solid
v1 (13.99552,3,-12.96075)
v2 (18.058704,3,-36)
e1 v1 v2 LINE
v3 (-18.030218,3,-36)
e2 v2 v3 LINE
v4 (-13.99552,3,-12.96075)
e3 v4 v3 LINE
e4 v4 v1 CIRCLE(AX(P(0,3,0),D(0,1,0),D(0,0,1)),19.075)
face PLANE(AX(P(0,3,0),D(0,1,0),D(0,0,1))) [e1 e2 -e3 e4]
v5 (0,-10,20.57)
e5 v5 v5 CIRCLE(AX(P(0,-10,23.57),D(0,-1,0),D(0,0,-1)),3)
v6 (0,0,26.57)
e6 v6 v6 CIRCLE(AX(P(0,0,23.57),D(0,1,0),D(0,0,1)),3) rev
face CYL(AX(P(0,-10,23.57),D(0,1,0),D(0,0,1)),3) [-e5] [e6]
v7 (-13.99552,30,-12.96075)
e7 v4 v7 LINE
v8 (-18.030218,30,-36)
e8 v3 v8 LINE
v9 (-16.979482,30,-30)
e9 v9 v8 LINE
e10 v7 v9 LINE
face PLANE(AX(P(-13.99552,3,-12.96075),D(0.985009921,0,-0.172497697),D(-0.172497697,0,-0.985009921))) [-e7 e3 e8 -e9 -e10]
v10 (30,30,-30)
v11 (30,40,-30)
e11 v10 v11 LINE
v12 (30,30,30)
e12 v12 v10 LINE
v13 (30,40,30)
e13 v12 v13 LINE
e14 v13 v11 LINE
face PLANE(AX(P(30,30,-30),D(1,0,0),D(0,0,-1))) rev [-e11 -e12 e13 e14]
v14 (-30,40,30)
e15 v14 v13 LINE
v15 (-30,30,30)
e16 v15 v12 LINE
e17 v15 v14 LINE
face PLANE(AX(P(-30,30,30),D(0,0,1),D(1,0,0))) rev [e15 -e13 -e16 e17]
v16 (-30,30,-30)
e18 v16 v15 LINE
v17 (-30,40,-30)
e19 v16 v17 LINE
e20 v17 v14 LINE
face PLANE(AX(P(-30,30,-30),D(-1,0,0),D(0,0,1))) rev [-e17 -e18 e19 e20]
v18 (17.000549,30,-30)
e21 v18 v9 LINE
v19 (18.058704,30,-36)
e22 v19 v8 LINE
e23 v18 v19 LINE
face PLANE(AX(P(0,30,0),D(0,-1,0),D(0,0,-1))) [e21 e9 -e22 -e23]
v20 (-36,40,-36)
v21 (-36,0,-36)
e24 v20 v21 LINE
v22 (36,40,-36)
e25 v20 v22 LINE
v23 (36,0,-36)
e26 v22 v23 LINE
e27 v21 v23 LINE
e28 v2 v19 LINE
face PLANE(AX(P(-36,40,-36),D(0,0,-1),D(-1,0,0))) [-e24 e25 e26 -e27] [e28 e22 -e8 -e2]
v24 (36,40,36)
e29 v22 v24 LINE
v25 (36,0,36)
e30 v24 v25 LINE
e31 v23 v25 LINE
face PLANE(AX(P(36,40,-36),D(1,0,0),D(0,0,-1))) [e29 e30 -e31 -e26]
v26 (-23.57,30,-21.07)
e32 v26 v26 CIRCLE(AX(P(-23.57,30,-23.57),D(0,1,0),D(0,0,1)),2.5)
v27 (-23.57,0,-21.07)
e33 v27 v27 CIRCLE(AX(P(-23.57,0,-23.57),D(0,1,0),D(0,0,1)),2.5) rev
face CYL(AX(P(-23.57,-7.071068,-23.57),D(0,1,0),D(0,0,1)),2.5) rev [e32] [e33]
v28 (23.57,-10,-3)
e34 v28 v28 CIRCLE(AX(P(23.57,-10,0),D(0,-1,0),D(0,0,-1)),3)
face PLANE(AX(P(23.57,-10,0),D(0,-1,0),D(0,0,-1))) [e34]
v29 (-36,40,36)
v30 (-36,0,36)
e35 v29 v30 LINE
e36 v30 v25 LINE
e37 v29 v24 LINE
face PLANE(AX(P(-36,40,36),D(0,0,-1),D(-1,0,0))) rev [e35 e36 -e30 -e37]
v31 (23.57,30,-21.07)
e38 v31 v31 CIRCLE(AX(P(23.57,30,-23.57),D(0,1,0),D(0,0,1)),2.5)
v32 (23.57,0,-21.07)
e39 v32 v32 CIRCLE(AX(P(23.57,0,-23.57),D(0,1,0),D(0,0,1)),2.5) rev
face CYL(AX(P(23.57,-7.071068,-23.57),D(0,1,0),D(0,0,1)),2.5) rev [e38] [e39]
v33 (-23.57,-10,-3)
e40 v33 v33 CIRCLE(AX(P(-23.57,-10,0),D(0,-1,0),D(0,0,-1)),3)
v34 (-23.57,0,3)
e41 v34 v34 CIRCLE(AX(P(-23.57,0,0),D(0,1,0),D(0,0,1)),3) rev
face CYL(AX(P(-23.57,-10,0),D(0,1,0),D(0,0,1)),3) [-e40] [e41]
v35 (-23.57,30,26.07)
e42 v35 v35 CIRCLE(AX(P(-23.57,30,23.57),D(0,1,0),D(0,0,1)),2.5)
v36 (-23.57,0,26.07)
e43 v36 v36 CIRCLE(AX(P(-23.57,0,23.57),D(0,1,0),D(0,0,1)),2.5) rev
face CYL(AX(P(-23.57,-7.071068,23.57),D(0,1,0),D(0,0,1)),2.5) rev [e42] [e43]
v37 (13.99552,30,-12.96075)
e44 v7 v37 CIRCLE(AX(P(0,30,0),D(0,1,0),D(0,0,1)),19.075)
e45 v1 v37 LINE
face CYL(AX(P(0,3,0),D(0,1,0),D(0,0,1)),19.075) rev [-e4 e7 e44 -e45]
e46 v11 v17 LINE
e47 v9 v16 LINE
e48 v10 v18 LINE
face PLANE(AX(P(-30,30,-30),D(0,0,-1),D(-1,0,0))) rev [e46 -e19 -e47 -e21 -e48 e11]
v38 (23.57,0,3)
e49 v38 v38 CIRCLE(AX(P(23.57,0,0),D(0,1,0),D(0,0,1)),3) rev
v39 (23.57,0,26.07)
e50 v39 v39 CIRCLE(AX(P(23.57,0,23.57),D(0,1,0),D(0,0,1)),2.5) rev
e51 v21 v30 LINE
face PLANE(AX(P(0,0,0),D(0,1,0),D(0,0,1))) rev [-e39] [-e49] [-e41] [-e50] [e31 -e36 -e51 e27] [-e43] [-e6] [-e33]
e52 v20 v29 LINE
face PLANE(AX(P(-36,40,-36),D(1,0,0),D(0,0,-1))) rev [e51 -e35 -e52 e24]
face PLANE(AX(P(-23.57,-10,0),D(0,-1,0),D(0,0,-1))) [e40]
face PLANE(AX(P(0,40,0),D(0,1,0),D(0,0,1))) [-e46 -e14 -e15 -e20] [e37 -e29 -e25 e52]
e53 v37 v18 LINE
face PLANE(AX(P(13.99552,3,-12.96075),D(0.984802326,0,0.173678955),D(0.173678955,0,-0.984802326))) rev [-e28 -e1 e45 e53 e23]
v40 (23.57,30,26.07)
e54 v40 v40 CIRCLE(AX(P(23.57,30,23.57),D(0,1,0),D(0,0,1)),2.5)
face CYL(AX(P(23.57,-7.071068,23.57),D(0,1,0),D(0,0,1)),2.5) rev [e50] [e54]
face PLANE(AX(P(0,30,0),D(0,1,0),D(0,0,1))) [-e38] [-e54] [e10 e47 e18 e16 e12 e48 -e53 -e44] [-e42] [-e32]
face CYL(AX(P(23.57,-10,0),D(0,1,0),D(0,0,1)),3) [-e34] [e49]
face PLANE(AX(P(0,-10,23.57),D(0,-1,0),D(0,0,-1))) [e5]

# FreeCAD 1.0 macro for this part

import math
import FreeCAD as App
import Part
import Sketcher

V = App.Vector
Q = App.Units.Quantity


def add_polygon(sketch, points):
    """Adds a closed chain of lines whose ends are joined by coincident constraints."""
    first, n = sketch.GeometryCount, len(points)
    for a, b in zip(points, points[1:] + points[:1]):
        sketch.addGeometry(Part.LineSegment(App.Vector(*a, 0), App.Vector(*b, 0)), False)
    for i in range(n):
        sketch.addConstraint(Sketcher.Constraint("Coincident", first + i, 2, first + (i + 1) % n, 1))

doc = App.newDocument("Part")
body = doc.addObject("PartDesign::Body", "Body")

# Sketch on XZ plane
sketch1 = body.newObject("Sketcher::SketchObject", "Sketch")
sketch1.AttachmentSupport = (doc.getObject("XZ_Plane"), [""])
sketch1.MapMode = "FlatFace"
add_polygon(sketch1, [(-36, -36), (-36, 36), (36, 36), (36, -36)])  # lines 0-3
sketch1.addConstraint(Sketcher.Constraint("Vertical", 0))
sketch1.addConstraint(Sketcher.Constraint("Horizontal", 1))
sketch1.addConstraint(Sketcher.Constraint("Vertical", 2))
sketch1.addConstraint(Sketcher.Constraint("Horizontal", 3))
sketch1.addConstraint(Sketcher.Constraint("Symmetric", 0, 2, 2, 2, -1, 1))
sketch1.addConstraint(Sketcher.Constraint("Equal", 3, 0))
sketch1.addConstraint(Sketcher.Constraint("DistanceX", 1, 1, 1, 2, Q("72 mm")))
pad1 = body.newObject("PartDesign::Pad", "Pad")
pad1.Profile = sketch1
pad1.Length = 40
pad1.Reversed = True

# Sketch on XZ plane
sketch2 = body.newObject("Sketcher::SketchObject", "Sketch001")
sketch2.AttachmentSupport = (doc.getObject("XZ_Plane"), [""])
sketch2.MapMode = "FlatFace"
sketch2.AttachmentOffset = App.Placement(V(0, 0, -40), App.Rotation())
add_polygon(sketch2, [(-30, -30), (-30, 30), (30, 30), (30, -30)])  # lines 0-3
sketch2.addConstraint(Sketcher.Constraint("Vertical", 0))
sketch2.addConstraint(Sketcher.Constraint("Horizontal", 1))
sketch2.addConstraint(Sketcher.Constraint("Vertical", 2))
sketch2.addConstraint(Sketcher.Constraint("Horizontal", 3))
sketch2.addConstraint(Sketcher.Constraint("Symmetric", 0, 2, 2, 2, -1, 1))
sketch2.addConstraint(Sketcher.Constraint("Equal", 3, 0))
sketch2.addConstraint(Sketcher.Constraint("DistanceX", 1, 1, 1, 2, Q("60 mm")))
pocket1 = body.newObject("PartDesign::Pocket", "Pocket")
pocket1.Profile = sketch2
pocket1.Length = 10
pocket1.Reversed = True

# Sketch on XZ plane
sketch3 = body.newObject("Sketcher::SketchObject", "Sketch002")
sketch3.AttachmentSupport = (doc.getObject("XZ_Plane"), [""])
sketch3.MapMode = "FlatFace"
sketch3.AttachmentOffset = App.Placement(V(0, 0, -30), App.Rotation())
sketch3.addGeometry(Part.Circle(V(-23.57, -23.57, 0), V(0, 0, 1), 2.5), False)
sketch3.addGeometry(Part.Circle(V(23.57, -23.57, 0), V(0, 0, 1), 2.5), False)
sketch3.addGeometry(Part.Circle(V(23.57, 23.57, 0), V(0, 0, 1), 2.5), False)
sketch3.addGeometry(Part.Circle(V(-23.57, 23.57, 0), V(0, 0, 1), 2.5), False)
sketch3.addConstraint(Sketcher.Constraint("Equal", 0, 1))
sketch3.addConstraint(Sketcher.Constraint("Equal", 1, 2))
sketch3.addConstraint(Sketcher.Constraint("Equal", 2, 3))
sketch3.addConstraint(Sketcher.Constraint("Symmetric", 0, 3, 2, 3, -1, 1))
sketch3.addConstraint(Sketcher.Constraint("Symmetric", 1, 3, 3, 3, -1, 1))
sketch3.addConstraint(Sketcher.Constraint("Symmetric", 0, 3, 1, 3, -2))
sketch3.addConstraint(Sketcher.Constraint("Diameter", 0, Q("5 mm")))
sketch3.addConstraint(Sketcher.Constraint("DistanceX", 0, 3, -1, 1, Q("23.57 mm")))
sketch3.addConstraint(Sketcher.Constraint("DistanceY", 0, 3, -1, 1, Q("23.57 mm")))
pocket2 = body.newObject("PartDesign::Pocket", "Pocket001")
pocket2.Profile = sketch3
pocket2.Length = 30
pocket2.Reversed = True

# Sketch on XZ plane
sketch4 = body.newObject("Sketcher::SketchObject", "Sketch003")
sketch4.AttachmentSupport = (doc.getObject("XZ_Plane"), [""])
sketch4.MapMode = "FlatFace"
sketch4.AttachmentOffset = App.Placement(V(0, 0, -30), App.Rotation())
sketch4.addGeometry(Part.Circle(V(0, 0, 0), V(0, 0, 1), 19.075), False)
sketch4.addConstraint(Sketcher.Constraint("Coincident", 0, 3, -1, 1))
sketch4.addConstraint(Sketcher.Constraint("Diameter", 0, Q("38.15 mm")))
pocket3 = body.newObject("PartDesign::Pocket", "Pocket002")
pocket3.Profile = sketch4
pocket3.Length = 27
pocket3.Reversed = True

# Sketch on XZ plane
sketch5 = body.newObject("Sketcher::SketchObject", "Sketch004")
sketch5.AttachmentSupport = (doc.getObject("XZ_Plane"), [""])
sketch5.MapMode = "FlatFace"
sketch5.AttachmentOffset = App.Placement(V(0, 0, -30), App.Rotation())
sketch5.addGeometry(Part.LineSegment(V(-18.030218, -36, 0), V(-13.99552, -12.96075, 0)), False)
sketch5.addGeometry(Part.ArcOfCircle(Part.Circle(V(0, 0, 0), V(0, 0, 1), 19.075), math.radians(-137.198335), math.radians(-42.801665)), False)
sketch5.addGeometry(Part.LineSegment(V(13.99552, -12.96075, 0), V(18.058704, -36, 0)), False)
sketch5.addGeometry(Part.LineSegment(V(18.058704, -36, 0), V(-18.030218, -36, 0)), False)
sketch5.addConstraint(Sketcher.Constraint("Coincident", 0, 2, 1, 1))
sketch5.addConstraint(Sketcher.Constraint("Coincident", 1, 2, 2, 1))
sketch5.addConstraint(Sketcher.Constraint("Coincident", 2, 2, 3, 1))
sketch5.addConstraint(Sketcher.Constraint("Coincident", 3, 2, 0, 1))
sketch5.addConstraint(Sketcher.Constraint("Horizontal", 3))
sketch5.addConstraint(Sketcher.Constraint("Coincident", 1, 3, -1, 1))
sketch5.addConstraint(Sketcher.Constraint("Horizontal", 0, 2, 1, 2))
sketch5.addConstraint(Sketcher.Constraint("DistanceY", 2, 2, -1, 1, Q("36 mm")))
sketch5.addConstraint(Sketcher.Constraint("Radius", 1, Q("19.075 mm")))
sketch5.addConstraint(Sketcher.Constraint("DistanceX", 3, 2, 0, 2, Q("4.034698 mm")))
sketch5.addConstraint(Sketcher.Constraint("DistanceX", 3, 2, 3, 1, Q("36.088923 mm")))
sketch5.addConstraint(Sketcher.Constraint("DistanceX", 0, 2, -1, 1, Q("13.99552 mm")))
pocket4 = body.newObject("PartDesign::Pocket", "Pocket003")
pocket4.Profile = sketch5
pocket4.Length = 27
pocket4.Reversed = True

# Sketch on XZ plane
sketch6 = body.newObject("Sketcher::SketchObject", "Sketch005")
sketch6.AttachmentSupport = (doc.getObject("XZ_Plane"), [""])
sketch6.MapMode = "FlatFace"
sketch6.addGeometry(Part.Circle(V(0, 23.57, 0), V(0, 0, 1), 3), False)
sketch6.addGeometry(Part.Circle(V(23.57, 0, 0), V(0, 0, 1), 3), False)
sketch6.addGeometry(Part.Circle(V(-23.57, 0, 0), V(0, 0, 1), 3), False)
sketch6.addConstraint(Sketcher.Constraint("Equal", 0, 1))
sketch6.addConstraint(Sketcher.Constraint("Equal", 1, 2))
sketch6.addConstraint(Sketcher.Constraint("Symmetric", 1, 3, 2, 3, -1, 1))
sketch6.addConstraint(Sketcher.Constraint("PointOnObject", 0, 3, -2))
sketch6.addConstraint(Sketcher.Constraint("PointOnObject", 1, 3, -1))
sketch6.addConstraint(Sketcher.Constraint("Diameter", 0, Q("6 mm")))
sketch6.addConstraint(Sketcher.Constraint("DistanceY", -1, 1, 0, 3, Q("23.57 mm")))
sketch6.addConstraint(Sketcher.Constraint("DistanceX", -1, 1, 1, 3, Q("23.57 mm")))
pad2 = body.newObject("PartDesign::Pad", "Pad001")
pad2.Profile = sketch6
pad2.Length = 10

doc.recompute()
